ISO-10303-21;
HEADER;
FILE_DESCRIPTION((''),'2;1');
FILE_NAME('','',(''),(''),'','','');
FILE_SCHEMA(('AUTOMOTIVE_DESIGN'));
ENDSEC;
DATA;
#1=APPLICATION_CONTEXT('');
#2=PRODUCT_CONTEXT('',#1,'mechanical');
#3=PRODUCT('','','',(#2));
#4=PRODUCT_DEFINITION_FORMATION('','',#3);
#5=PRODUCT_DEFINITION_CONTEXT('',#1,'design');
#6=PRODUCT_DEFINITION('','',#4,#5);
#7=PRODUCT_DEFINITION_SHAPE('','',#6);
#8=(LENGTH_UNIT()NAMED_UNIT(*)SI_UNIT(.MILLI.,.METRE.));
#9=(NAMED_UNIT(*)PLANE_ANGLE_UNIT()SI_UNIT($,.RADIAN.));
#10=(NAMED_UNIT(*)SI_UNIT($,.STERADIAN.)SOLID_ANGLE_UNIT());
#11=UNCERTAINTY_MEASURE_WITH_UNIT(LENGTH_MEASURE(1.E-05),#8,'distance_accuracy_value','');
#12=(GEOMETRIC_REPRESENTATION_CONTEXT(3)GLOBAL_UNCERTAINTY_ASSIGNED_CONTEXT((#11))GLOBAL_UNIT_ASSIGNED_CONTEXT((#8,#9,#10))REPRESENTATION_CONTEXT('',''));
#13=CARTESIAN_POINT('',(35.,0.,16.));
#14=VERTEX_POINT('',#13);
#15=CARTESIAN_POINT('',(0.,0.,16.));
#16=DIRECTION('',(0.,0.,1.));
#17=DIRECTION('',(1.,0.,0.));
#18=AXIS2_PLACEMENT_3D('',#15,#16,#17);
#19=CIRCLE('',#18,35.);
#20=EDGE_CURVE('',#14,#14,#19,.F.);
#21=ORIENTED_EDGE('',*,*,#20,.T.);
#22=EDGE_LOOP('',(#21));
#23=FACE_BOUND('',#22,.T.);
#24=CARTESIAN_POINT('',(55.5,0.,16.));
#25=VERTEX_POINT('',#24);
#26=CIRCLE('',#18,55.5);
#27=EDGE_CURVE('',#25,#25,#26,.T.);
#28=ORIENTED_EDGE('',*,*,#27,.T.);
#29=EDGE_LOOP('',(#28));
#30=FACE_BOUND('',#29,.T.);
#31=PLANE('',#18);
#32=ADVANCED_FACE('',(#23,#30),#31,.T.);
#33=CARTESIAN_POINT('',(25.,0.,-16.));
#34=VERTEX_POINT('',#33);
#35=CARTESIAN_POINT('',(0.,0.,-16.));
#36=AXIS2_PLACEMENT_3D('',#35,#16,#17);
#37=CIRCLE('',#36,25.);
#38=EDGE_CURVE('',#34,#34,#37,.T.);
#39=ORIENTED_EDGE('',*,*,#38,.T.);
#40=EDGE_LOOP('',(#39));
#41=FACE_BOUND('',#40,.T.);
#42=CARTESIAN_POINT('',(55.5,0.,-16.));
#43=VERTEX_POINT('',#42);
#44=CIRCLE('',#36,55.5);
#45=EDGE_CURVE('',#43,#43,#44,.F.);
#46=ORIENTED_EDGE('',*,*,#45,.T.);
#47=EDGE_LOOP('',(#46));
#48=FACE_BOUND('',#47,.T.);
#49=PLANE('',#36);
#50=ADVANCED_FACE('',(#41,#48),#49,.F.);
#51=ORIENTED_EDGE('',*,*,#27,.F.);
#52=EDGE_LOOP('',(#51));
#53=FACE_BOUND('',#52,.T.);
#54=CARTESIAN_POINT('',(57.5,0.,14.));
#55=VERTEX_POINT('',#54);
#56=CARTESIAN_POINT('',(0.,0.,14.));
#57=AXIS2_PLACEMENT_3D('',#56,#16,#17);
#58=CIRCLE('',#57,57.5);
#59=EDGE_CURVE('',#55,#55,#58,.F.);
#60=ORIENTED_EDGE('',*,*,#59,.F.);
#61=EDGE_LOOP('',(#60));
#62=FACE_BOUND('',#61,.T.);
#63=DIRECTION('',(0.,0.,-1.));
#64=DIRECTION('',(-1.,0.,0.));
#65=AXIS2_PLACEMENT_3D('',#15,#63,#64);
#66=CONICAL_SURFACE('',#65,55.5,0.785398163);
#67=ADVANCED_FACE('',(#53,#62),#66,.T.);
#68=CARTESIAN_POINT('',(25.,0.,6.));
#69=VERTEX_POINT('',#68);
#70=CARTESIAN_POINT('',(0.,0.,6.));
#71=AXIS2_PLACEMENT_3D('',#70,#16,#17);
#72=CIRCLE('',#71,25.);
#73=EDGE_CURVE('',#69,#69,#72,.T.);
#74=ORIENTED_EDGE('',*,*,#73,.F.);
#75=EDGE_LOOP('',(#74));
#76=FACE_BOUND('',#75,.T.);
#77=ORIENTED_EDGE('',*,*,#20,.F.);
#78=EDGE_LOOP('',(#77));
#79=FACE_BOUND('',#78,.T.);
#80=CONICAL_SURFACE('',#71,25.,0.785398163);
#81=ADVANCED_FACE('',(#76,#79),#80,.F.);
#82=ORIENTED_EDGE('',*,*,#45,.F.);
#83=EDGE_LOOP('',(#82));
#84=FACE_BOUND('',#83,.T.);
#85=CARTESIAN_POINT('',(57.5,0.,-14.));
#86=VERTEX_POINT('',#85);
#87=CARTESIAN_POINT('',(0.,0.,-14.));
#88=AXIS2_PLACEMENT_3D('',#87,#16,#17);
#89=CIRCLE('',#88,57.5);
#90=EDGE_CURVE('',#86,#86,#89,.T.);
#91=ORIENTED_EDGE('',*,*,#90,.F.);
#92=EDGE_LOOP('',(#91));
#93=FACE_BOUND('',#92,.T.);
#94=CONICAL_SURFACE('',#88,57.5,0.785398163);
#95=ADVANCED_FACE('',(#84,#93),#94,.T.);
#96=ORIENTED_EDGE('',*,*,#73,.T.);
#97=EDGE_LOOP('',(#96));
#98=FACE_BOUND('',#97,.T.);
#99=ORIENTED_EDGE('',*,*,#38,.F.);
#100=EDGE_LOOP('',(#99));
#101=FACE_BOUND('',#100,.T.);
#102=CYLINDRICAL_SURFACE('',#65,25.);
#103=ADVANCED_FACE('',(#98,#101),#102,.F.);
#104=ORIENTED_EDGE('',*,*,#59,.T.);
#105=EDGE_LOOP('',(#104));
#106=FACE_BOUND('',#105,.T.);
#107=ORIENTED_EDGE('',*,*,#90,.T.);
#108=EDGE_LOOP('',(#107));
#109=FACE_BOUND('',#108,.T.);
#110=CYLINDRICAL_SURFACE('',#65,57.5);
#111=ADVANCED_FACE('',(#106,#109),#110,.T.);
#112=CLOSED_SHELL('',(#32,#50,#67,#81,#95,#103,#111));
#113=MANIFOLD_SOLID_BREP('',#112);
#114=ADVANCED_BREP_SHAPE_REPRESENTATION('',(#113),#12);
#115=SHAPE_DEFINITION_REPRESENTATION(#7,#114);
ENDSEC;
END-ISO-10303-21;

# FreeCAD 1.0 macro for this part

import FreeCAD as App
import Part
import Sketcher
from FreeCAD import Vector


def edges_at(feature, points):
    """Names of the edges that pass closest to the given points."""
    edges = feature.Shape.Edges
    near = lambda p: min(range(len(edges)), key=lambda i: edges[i].distToShape(Part.Vertex(*p))[0])
    return sorted({f"Edge{near(p) + 1}" for p in points})

doc = App.newDocument("Part")
params = doc.addObject("Spreadsheet::Sheet", "Params")
for row, (alias, value) in enumerate([
    ("sketch1_diameter", "115 mm"),
    ("sketch1_diameter2", "50 mm"),
    ("pad1_length", "32 mm"),
    ("chamfer_size", "2 mm"),
    ("chamfer2_size", "10 mm"),
], start=1):
    params.set(f"A{row}", alias)
    params.set(f"B{row}", "=" + value)
    params.setAlias(f"B{row}", alias)

body = doc.addObject("PartDesign::Body", "Body")

sketch1 = body.newObject("Sketcher::SketchObject", "Sketch")
sketch1.AttachmentSupport = (doc.getObject("XY_Plane"), [""])
sketch1.MapMode = "FlatFace"
sketch1.addGeometry(Part.Circle(Vector(0, 0, 0), Vector(0, 0, 1), 57.5), False)
sketch1.addGeometry(Part.Circle(Vector(0, 0, 0), Vector(0, 0, 1), 25), False)
sketch1.addConstraint(Sketcher.Constraint("Coincident", 0, 3, -1, 1))
sketch1.addConstraint(Sketcher.Constraint("Coincident", 1, 3, -1, 1))
sketch1.addConstraint(Sketcher.Constraint("Diameter", 0, 115.0))
sketch1.addConstraint(Sketcher.Constraint("Diameter", 1, 50.0))
sketch1.setExpression("Constraints[2]", "Params.sketch1_diameter")
sketch1.setExpression("Constraints[3]", "Params.sketch1_diameter2")
pad1 = body.newObject("PartDesign::Pad", "Pad")
pad1.Profile = sketch1
pad1.setExpression("Length", "Params.pad1_length")
pad1.Midplane = True
doc.recompute()

chamfer = body.newObject("PartDesign::Chamfer", "Chamfer")
chamfer.Base = (pad1, edges_at(pad1, [(-57.5, 0, -16), (-57.5, 0, 16)]))
chamfer.setExpression("Size", "Params.chamfer_size")
doc.recompute()

chamfer2 = body.newObject("PartDesign::Chamfer", "Chamfer001")
chamfer2.Base = (chamfer, edges_at(chamfer, [(-25, 0, 16)]))
chamfer2.setExpression("Size", "Params.chamfer2_size")

doc.recompute()
